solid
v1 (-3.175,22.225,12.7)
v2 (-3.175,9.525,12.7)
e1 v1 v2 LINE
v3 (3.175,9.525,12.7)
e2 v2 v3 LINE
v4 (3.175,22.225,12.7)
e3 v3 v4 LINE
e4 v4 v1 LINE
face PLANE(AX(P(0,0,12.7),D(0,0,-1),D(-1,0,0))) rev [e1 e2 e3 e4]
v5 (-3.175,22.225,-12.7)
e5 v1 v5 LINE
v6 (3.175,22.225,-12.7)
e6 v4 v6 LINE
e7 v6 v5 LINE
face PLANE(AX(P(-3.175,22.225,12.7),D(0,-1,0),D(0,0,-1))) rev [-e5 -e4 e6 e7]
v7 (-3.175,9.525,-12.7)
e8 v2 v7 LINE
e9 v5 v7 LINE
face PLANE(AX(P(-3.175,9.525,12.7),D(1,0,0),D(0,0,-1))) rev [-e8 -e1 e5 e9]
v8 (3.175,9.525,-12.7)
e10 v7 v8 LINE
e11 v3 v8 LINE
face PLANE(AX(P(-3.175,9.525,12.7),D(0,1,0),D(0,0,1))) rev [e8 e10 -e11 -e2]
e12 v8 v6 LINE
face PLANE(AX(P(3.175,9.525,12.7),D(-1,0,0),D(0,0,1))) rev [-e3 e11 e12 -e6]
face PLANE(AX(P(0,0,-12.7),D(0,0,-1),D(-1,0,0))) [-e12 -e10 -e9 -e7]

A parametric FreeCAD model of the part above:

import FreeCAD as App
import Part
import Sketcher
from FreeCAD import Vector
Q = App.Units.Quantity


def add_polygon(sketch, points):
    """Adds a closed chain of lines whose ends are joined by coincident constraints."""
    first, n = sketch.GeometryCount, len(points)
    for a, b in zip(points, points[1:] + points[:1]):
        sketch.addGeometry(Part.LineSegment(App.Vector(*a, 0), App.Vector(*b, 0)), False)
    for i in range(n):
        sketch.addConstraint(Sketcher.Constraint("Coincident", first + i, 2, first + (i + 1) % n, 1))

doc = App.newDocument("Part")
body = doc.addObject("PartDesign::Body", "Body")

# Sketch on XY plane
sketch1 = body.newObject("Sketcher::SketchObject", "Sketch")
sketch1.AttachmentSupport = (doc.getObject("XY_Plane"), [""])
sketch1.MapMode = "FlatFace"
add_polygon(sketch1, [(-3.175, 22.225), (-3.175, 9.525), (3.175, 9.525), (3.175, 22.225)])  # lines 0-3
sketch1.addConstraint(Sketcher.Constraint("Vertical", 0))
sketch1.addConstraint(Sketcher.Constraint("Horizontal", 1))
sketch1.addConstraint(Sketcher.Constraint("Vertical", 2))
sketch1.addConstraint(Sketcher.Constraint("Horizontal", 3))
sketch1.addConstraint(Sketcher.Constraint("DistanceY", 0, 2, 0, 1, Q("0.5 in")))
sketch1.addConstraint(Sketcher.Constraint("DistanceX", 1, 1, 1, 2, Q("0.25 in")))
sketch1.addConstraint(Sketcher.Constraint("DistanceX", 0, 2, -1, 1, Q("0.125 in")))
sketch1.addConstraint(Sketcher.Constraint("DistanceY", -1, 1, 0, 2, Q("0.375 in")))
pad1 = body.newObject("PartDesign::Pad", "Pad")
pad1.Profile = sketch1
pad1.Length = Q("1 in")
pad1.Midplane = True

doc.recompute()
